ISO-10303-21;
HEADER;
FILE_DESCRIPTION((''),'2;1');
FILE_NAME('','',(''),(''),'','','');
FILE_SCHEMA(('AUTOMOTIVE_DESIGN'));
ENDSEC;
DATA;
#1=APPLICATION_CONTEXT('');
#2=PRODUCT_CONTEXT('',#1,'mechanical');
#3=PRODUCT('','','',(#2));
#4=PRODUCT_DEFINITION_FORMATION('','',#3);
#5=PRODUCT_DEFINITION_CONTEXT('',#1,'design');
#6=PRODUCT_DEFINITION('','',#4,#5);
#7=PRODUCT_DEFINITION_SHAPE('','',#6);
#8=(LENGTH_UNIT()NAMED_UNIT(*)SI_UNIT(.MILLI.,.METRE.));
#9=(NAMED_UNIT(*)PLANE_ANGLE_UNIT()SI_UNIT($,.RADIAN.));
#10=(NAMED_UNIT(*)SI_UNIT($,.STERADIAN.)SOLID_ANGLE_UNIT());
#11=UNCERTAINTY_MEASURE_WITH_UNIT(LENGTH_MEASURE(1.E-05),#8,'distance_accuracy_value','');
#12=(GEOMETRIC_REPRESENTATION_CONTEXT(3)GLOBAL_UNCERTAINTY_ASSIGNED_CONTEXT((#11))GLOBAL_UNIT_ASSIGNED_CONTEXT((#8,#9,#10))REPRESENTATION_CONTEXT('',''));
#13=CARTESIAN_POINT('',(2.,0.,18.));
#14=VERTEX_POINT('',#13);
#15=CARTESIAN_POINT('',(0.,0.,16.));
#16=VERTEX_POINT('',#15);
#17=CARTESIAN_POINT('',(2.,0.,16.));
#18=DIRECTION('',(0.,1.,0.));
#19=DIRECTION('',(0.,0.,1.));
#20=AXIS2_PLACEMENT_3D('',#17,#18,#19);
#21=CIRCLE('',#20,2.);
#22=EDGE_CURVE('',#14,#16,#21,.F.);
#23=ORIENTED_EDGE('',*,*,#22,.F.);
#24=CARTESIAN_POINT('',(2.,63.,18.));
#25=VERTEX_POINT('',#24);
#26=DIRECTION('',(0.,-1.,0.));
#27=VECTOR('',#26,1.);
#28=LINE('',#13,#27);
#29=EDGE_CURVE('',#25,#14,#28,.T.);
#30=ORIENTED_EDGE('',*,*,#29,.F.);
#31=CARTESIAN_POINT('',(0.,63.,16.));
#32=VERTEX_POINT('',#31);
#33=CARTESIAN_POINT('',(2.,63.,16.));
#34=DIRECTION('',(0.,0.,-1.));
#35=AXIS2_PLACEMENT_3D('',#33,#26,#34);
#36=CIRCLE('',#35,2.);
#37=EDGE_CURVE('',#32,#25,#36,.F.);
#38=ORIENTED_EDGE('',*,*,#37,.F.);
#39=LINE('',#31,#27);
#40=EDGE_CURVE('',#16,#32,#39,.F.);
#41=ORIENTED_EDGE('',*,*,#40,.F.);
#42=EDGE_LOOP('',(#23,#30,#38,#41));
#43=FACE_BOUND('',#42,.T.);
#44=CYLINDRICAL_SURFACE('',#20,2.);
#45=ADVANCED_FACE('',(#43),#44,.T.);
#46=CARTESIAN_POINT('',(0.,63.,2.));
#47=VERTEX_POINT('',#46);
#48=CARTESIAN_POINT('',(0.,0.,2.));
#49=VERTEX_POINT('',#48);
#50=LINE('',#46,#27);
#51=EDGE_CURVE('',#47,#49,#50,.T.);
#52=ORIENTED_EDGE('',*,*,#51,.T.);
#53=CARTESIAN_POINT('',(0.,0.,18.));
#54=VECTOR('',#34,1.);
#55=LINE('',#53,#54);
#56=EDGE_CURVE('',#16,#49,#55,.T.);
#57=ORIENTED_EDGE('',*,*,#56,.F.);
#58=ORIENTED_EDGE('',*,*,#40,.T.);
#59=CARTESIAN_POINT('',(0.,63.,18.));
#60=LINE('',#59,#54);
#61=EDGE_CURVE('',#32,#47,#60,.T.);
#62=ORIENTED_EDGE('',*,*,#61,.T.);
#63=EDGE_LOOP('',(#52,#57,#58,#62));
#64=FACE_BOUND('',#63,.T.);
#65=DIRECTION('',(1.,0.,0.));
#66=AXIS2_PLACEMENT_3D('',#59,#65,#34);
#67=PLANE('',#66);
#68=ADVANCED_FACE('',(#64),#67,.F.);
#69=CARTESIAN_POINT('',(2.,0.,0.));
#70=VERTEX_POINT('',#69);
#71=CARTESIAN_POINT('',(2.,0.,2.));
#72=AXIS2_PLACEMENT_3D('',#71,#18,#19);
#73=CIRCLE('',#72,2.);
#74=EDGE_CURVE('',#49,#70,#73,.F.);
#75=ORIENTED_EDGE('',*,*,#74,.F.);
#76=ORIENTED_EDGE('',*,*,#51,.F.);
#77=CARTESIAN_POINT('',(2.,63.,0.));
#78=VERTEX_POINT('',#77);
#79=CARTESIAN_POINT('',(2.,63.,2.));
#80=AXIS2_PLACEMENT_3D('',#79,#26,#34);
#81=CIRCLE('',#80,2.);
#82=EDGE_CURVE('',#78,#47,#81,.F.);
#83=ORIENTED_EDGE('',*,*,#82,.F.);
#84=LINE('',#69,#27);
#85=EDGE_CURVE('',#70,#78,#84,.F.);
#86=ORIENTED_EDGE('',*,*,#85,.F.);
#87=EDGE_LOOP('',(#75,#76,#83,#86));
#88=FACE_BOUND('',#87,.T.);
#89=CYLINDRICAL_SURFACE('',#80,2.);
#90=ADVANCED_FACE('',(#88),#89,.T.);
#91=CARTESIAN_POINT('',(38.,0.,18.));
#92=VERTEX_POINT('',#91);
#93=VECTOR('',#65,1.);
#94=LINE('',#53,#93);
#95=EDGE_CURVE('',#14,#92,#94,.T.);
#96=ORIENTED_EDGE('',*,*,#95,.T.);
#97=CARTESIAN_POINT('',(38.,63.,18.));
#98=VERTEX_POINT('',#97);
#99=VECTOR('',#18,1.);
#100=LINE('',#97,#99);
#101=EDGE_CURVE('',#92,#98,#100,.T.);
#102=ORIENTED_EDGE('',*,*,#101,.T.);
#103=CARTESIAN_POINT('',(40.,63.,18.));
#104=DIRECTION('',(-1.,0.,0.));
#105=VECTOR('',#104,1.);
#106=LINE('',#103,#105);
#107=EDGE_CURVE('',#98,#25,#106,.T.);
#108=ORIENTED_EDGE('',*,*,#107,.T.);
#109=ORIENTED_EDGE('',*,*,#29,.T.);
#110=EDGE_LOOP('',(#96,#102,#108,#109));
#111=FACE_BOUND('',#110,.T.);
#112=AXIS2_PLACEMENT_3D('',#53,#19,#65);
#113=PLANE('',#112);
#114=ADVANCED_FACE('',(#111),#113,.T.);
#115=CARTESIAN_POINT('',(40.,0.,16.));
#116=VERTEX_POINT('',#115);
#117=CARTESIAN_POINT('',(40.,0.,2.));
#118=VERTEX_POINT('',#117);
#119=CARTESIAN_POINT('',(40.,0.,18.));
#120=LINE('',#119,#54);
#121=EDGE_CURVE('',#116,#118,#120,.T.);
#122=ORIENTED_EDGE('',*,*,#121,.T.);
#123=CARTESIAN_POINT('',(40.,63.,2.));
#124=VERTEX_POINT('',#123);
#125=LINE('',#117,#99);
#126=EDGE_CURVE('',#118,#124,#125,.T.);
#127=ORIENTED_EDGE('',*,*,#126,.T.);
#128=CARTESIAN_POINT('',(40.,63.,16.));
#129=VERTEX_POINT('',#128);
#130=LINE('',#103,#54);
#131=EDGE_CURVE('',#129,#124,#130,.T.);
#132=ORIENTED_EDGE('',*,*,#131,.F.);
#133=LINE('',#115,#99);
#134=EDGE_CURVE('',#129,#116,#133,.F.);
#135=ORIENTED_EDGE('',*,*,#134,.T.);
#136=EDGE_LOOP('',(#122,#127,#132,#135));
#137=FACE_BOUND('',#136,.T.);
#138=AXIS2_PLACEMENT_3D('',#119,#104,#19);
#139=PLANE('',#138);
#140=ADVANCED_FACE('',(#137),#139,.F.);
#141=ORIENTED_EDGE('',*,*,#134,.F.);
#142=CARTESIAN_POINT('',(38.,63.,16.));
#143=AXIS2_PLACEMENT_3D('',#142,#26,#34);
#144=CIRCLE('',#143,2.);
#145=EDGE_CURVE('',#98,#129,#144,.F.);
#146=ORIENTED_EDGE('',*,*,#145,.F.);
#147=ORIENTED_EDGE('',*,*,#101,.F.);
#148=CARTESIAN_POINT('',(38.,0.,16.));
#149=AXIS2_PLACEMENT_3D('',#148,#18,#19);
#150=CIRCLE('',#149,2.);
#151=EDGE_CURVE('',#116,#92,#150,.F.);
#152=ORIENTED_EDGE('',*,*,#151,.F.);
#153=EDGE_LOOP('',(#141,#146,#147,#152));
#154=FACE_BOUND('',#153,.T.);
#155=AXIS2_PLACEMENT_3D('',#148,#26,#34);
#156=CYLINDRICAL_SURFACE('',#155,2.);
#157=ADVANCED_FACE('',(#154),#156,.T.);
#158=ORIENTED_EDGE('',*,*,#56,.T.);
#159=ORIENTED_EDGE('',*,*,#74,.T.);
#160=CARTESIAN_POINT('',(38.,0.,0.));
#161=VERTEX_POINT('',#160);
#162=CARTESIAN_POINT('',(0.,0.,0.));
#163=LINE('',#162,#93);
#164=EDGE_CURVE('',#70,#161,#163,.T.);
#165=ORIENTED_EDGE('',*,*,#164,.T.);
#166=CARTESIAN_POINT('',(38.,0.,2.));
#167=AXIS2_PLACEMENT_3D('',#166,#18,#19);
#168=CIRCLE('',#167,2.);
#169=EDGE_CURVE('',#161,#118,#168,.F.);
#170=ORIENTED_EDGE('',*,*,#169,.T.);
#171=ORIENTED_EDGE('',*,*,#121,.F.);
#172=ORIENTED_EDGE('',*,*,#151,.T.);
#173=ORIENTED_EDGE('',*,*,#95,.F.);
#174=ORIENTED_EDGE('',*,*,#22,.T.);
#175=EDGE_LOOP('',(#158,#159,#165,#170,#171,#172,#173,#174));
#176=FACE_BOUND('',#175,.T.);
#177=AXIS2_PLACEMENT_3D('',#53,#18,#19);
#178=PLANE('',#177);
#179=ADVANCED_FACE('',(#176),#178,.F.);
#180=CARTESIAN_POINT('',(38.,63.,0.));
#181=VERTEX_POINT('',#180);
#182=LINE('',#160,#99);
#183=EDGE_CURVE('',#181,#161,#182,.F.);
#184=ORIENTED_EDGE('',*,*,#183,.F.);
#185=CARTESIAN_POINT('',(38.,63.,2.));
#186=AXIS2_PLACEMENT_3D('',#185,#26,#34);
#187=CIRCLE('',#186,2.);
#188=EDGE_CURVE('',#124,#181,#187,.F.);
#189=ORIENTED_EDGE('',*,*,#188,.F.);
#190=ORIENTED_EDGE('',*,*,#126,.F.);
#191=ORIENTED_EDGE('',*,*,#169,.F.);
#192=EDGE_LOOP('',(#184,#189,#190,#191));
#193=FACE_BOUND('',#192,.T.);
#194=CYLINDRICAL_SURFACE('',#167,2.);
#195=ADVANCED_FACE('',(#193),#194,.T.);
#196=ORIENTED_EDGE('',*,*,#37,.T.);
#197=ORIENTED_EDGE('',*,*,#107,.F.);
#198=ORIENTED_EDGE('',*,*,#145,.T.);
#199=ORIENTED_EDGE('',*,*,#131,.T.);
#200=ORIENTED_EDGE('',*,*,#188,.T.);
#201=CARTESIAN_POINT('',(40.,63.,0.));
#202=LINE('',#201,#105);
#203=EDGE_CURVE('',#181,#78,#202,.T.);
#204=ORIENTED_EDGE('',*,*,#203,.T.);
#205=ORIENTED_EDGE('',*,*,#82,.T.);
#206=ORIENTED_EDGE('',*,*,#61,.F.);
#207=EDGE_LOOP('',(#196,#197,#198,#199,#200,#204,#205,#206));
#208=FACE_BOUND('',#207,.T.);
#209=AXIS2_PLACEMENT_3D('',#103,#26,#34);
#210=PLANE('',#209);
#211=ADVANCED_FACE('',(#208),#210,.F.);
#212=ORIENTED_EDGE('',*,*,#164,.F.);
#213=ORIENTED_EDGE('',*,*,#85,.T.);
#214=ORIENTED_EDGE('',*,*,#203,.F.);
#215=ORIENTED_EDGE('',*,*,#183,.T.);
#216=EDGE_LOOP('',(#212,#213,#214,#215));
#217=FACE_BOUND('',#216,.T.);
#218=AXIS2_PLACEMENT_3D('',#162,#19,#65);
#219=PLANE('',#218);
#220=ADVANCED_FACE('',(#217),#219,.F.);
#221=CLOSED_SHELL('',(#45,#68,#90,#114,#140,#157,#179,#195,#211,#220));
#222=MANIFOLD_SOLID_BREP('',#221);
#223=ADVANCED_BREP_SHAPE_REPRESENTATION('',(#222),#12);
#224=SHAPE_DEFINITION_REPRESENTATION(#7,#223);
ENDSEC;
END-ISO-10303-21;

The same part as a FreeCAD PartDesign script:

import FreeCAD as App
import Part
import Sketcher

V = App.Vector


def edges_at(feature, points):
    """Names of the edges that pass closest to the given points."""
    edges = feature.Shape.Edges
    near = lambda p: min(range(len(edges)), key=lambda i: edges[i].distToShape(Part.Vertex(*p))[0])
    return sorted({f"Edge{near(p) + 1}" for p in points})

doc = App.newDocument("Part")
params = doc.addObject("Spreadsheet::Sheet", "Params")
for row, (alias, value) in enumerate([
    ("sketch1_width", "40 mm"),
    ("sketch1_height", "63 mm"),
    ("pad1_length", "18 mm"),
    ("fillet_radius", "2 mm"),
], start=1):
    params.set(f"A{row}", alias)
    params.set(f"B{row}", "=" + value)
    params.setAlias(f"B{row}", alias)

body = doc.addObject("PartDesign::Body", "Body")

sketch1 = body.newObject("Sketcher::SketchObject", "Sketch")
sketch1.AttachmentSupport = (doc.getObject("XY_Plane"), [""])
sketch1.MapMode = "FlatFace"
sketch1.addGeometry([
    Part.LineSegment(V(0, 63, 0), V(0, 0, 0)),
    Part.LineSegment(V(0, 0, 0), V(40, 0, 0)),
    Part.LineSegment(V(40, 0, 0), V(40, 63, 0)),
    Part.LineSegment(V(40, 63, 0), V(0, 63, 0)),
], False)
sketch1.addConstraint([
    Sketcher.Constraint("Coincident", 0, 2, 1, 1),
    Sketcher.Constraint("Coincident", 1, 2, 2, 1),
    Sketcher.Constraint("Coincident", 2, 2, 3, 1),
    Sketcher.Constraint("Coincident", 3, 2, 0, 1),
    Sketcher.Constraint("Vertical", 0),
    Sketcher.Constraint("Horizontal", 1),
    Sketcher.Constraint("Vertical", 2),
    Sketcher.Constraint("Horizontal", 3),
    Sketcher.Constraint("Coincident", 0, 2, -1, 1),
    Sketcher.Constraint("DistanceX", 1, 1, 1, 2, 40.0),
    Sketcher.Constraint("DistanceY", 0, 2, 0, 1, 63.0),
])
sketch1.setExpression("Constraints[9]", "Params.sketch1_width")
sketch1.setExpression("Constraints[10]", "Params.sketch1_height")
pad1 = body.newObject("PartDesign::Pad", "Pad")
pad1.Profile = sketch1
pad1.setExpression("Length", "Params.pad1_length")
doc.recompute()

fillet = body.newObject("PartDesign::Fillet", "Fillet")
fillet.Base = (pad1, edges_at(pad1, [
    (40, 31.5, 18),
    (0, 31.5, 18),
    (40, 31.5, 0),
    (0, 31.5, 0),
]))
fillet.setExpression("Radius", "Params.fillet_radius")

doc.recompute()
